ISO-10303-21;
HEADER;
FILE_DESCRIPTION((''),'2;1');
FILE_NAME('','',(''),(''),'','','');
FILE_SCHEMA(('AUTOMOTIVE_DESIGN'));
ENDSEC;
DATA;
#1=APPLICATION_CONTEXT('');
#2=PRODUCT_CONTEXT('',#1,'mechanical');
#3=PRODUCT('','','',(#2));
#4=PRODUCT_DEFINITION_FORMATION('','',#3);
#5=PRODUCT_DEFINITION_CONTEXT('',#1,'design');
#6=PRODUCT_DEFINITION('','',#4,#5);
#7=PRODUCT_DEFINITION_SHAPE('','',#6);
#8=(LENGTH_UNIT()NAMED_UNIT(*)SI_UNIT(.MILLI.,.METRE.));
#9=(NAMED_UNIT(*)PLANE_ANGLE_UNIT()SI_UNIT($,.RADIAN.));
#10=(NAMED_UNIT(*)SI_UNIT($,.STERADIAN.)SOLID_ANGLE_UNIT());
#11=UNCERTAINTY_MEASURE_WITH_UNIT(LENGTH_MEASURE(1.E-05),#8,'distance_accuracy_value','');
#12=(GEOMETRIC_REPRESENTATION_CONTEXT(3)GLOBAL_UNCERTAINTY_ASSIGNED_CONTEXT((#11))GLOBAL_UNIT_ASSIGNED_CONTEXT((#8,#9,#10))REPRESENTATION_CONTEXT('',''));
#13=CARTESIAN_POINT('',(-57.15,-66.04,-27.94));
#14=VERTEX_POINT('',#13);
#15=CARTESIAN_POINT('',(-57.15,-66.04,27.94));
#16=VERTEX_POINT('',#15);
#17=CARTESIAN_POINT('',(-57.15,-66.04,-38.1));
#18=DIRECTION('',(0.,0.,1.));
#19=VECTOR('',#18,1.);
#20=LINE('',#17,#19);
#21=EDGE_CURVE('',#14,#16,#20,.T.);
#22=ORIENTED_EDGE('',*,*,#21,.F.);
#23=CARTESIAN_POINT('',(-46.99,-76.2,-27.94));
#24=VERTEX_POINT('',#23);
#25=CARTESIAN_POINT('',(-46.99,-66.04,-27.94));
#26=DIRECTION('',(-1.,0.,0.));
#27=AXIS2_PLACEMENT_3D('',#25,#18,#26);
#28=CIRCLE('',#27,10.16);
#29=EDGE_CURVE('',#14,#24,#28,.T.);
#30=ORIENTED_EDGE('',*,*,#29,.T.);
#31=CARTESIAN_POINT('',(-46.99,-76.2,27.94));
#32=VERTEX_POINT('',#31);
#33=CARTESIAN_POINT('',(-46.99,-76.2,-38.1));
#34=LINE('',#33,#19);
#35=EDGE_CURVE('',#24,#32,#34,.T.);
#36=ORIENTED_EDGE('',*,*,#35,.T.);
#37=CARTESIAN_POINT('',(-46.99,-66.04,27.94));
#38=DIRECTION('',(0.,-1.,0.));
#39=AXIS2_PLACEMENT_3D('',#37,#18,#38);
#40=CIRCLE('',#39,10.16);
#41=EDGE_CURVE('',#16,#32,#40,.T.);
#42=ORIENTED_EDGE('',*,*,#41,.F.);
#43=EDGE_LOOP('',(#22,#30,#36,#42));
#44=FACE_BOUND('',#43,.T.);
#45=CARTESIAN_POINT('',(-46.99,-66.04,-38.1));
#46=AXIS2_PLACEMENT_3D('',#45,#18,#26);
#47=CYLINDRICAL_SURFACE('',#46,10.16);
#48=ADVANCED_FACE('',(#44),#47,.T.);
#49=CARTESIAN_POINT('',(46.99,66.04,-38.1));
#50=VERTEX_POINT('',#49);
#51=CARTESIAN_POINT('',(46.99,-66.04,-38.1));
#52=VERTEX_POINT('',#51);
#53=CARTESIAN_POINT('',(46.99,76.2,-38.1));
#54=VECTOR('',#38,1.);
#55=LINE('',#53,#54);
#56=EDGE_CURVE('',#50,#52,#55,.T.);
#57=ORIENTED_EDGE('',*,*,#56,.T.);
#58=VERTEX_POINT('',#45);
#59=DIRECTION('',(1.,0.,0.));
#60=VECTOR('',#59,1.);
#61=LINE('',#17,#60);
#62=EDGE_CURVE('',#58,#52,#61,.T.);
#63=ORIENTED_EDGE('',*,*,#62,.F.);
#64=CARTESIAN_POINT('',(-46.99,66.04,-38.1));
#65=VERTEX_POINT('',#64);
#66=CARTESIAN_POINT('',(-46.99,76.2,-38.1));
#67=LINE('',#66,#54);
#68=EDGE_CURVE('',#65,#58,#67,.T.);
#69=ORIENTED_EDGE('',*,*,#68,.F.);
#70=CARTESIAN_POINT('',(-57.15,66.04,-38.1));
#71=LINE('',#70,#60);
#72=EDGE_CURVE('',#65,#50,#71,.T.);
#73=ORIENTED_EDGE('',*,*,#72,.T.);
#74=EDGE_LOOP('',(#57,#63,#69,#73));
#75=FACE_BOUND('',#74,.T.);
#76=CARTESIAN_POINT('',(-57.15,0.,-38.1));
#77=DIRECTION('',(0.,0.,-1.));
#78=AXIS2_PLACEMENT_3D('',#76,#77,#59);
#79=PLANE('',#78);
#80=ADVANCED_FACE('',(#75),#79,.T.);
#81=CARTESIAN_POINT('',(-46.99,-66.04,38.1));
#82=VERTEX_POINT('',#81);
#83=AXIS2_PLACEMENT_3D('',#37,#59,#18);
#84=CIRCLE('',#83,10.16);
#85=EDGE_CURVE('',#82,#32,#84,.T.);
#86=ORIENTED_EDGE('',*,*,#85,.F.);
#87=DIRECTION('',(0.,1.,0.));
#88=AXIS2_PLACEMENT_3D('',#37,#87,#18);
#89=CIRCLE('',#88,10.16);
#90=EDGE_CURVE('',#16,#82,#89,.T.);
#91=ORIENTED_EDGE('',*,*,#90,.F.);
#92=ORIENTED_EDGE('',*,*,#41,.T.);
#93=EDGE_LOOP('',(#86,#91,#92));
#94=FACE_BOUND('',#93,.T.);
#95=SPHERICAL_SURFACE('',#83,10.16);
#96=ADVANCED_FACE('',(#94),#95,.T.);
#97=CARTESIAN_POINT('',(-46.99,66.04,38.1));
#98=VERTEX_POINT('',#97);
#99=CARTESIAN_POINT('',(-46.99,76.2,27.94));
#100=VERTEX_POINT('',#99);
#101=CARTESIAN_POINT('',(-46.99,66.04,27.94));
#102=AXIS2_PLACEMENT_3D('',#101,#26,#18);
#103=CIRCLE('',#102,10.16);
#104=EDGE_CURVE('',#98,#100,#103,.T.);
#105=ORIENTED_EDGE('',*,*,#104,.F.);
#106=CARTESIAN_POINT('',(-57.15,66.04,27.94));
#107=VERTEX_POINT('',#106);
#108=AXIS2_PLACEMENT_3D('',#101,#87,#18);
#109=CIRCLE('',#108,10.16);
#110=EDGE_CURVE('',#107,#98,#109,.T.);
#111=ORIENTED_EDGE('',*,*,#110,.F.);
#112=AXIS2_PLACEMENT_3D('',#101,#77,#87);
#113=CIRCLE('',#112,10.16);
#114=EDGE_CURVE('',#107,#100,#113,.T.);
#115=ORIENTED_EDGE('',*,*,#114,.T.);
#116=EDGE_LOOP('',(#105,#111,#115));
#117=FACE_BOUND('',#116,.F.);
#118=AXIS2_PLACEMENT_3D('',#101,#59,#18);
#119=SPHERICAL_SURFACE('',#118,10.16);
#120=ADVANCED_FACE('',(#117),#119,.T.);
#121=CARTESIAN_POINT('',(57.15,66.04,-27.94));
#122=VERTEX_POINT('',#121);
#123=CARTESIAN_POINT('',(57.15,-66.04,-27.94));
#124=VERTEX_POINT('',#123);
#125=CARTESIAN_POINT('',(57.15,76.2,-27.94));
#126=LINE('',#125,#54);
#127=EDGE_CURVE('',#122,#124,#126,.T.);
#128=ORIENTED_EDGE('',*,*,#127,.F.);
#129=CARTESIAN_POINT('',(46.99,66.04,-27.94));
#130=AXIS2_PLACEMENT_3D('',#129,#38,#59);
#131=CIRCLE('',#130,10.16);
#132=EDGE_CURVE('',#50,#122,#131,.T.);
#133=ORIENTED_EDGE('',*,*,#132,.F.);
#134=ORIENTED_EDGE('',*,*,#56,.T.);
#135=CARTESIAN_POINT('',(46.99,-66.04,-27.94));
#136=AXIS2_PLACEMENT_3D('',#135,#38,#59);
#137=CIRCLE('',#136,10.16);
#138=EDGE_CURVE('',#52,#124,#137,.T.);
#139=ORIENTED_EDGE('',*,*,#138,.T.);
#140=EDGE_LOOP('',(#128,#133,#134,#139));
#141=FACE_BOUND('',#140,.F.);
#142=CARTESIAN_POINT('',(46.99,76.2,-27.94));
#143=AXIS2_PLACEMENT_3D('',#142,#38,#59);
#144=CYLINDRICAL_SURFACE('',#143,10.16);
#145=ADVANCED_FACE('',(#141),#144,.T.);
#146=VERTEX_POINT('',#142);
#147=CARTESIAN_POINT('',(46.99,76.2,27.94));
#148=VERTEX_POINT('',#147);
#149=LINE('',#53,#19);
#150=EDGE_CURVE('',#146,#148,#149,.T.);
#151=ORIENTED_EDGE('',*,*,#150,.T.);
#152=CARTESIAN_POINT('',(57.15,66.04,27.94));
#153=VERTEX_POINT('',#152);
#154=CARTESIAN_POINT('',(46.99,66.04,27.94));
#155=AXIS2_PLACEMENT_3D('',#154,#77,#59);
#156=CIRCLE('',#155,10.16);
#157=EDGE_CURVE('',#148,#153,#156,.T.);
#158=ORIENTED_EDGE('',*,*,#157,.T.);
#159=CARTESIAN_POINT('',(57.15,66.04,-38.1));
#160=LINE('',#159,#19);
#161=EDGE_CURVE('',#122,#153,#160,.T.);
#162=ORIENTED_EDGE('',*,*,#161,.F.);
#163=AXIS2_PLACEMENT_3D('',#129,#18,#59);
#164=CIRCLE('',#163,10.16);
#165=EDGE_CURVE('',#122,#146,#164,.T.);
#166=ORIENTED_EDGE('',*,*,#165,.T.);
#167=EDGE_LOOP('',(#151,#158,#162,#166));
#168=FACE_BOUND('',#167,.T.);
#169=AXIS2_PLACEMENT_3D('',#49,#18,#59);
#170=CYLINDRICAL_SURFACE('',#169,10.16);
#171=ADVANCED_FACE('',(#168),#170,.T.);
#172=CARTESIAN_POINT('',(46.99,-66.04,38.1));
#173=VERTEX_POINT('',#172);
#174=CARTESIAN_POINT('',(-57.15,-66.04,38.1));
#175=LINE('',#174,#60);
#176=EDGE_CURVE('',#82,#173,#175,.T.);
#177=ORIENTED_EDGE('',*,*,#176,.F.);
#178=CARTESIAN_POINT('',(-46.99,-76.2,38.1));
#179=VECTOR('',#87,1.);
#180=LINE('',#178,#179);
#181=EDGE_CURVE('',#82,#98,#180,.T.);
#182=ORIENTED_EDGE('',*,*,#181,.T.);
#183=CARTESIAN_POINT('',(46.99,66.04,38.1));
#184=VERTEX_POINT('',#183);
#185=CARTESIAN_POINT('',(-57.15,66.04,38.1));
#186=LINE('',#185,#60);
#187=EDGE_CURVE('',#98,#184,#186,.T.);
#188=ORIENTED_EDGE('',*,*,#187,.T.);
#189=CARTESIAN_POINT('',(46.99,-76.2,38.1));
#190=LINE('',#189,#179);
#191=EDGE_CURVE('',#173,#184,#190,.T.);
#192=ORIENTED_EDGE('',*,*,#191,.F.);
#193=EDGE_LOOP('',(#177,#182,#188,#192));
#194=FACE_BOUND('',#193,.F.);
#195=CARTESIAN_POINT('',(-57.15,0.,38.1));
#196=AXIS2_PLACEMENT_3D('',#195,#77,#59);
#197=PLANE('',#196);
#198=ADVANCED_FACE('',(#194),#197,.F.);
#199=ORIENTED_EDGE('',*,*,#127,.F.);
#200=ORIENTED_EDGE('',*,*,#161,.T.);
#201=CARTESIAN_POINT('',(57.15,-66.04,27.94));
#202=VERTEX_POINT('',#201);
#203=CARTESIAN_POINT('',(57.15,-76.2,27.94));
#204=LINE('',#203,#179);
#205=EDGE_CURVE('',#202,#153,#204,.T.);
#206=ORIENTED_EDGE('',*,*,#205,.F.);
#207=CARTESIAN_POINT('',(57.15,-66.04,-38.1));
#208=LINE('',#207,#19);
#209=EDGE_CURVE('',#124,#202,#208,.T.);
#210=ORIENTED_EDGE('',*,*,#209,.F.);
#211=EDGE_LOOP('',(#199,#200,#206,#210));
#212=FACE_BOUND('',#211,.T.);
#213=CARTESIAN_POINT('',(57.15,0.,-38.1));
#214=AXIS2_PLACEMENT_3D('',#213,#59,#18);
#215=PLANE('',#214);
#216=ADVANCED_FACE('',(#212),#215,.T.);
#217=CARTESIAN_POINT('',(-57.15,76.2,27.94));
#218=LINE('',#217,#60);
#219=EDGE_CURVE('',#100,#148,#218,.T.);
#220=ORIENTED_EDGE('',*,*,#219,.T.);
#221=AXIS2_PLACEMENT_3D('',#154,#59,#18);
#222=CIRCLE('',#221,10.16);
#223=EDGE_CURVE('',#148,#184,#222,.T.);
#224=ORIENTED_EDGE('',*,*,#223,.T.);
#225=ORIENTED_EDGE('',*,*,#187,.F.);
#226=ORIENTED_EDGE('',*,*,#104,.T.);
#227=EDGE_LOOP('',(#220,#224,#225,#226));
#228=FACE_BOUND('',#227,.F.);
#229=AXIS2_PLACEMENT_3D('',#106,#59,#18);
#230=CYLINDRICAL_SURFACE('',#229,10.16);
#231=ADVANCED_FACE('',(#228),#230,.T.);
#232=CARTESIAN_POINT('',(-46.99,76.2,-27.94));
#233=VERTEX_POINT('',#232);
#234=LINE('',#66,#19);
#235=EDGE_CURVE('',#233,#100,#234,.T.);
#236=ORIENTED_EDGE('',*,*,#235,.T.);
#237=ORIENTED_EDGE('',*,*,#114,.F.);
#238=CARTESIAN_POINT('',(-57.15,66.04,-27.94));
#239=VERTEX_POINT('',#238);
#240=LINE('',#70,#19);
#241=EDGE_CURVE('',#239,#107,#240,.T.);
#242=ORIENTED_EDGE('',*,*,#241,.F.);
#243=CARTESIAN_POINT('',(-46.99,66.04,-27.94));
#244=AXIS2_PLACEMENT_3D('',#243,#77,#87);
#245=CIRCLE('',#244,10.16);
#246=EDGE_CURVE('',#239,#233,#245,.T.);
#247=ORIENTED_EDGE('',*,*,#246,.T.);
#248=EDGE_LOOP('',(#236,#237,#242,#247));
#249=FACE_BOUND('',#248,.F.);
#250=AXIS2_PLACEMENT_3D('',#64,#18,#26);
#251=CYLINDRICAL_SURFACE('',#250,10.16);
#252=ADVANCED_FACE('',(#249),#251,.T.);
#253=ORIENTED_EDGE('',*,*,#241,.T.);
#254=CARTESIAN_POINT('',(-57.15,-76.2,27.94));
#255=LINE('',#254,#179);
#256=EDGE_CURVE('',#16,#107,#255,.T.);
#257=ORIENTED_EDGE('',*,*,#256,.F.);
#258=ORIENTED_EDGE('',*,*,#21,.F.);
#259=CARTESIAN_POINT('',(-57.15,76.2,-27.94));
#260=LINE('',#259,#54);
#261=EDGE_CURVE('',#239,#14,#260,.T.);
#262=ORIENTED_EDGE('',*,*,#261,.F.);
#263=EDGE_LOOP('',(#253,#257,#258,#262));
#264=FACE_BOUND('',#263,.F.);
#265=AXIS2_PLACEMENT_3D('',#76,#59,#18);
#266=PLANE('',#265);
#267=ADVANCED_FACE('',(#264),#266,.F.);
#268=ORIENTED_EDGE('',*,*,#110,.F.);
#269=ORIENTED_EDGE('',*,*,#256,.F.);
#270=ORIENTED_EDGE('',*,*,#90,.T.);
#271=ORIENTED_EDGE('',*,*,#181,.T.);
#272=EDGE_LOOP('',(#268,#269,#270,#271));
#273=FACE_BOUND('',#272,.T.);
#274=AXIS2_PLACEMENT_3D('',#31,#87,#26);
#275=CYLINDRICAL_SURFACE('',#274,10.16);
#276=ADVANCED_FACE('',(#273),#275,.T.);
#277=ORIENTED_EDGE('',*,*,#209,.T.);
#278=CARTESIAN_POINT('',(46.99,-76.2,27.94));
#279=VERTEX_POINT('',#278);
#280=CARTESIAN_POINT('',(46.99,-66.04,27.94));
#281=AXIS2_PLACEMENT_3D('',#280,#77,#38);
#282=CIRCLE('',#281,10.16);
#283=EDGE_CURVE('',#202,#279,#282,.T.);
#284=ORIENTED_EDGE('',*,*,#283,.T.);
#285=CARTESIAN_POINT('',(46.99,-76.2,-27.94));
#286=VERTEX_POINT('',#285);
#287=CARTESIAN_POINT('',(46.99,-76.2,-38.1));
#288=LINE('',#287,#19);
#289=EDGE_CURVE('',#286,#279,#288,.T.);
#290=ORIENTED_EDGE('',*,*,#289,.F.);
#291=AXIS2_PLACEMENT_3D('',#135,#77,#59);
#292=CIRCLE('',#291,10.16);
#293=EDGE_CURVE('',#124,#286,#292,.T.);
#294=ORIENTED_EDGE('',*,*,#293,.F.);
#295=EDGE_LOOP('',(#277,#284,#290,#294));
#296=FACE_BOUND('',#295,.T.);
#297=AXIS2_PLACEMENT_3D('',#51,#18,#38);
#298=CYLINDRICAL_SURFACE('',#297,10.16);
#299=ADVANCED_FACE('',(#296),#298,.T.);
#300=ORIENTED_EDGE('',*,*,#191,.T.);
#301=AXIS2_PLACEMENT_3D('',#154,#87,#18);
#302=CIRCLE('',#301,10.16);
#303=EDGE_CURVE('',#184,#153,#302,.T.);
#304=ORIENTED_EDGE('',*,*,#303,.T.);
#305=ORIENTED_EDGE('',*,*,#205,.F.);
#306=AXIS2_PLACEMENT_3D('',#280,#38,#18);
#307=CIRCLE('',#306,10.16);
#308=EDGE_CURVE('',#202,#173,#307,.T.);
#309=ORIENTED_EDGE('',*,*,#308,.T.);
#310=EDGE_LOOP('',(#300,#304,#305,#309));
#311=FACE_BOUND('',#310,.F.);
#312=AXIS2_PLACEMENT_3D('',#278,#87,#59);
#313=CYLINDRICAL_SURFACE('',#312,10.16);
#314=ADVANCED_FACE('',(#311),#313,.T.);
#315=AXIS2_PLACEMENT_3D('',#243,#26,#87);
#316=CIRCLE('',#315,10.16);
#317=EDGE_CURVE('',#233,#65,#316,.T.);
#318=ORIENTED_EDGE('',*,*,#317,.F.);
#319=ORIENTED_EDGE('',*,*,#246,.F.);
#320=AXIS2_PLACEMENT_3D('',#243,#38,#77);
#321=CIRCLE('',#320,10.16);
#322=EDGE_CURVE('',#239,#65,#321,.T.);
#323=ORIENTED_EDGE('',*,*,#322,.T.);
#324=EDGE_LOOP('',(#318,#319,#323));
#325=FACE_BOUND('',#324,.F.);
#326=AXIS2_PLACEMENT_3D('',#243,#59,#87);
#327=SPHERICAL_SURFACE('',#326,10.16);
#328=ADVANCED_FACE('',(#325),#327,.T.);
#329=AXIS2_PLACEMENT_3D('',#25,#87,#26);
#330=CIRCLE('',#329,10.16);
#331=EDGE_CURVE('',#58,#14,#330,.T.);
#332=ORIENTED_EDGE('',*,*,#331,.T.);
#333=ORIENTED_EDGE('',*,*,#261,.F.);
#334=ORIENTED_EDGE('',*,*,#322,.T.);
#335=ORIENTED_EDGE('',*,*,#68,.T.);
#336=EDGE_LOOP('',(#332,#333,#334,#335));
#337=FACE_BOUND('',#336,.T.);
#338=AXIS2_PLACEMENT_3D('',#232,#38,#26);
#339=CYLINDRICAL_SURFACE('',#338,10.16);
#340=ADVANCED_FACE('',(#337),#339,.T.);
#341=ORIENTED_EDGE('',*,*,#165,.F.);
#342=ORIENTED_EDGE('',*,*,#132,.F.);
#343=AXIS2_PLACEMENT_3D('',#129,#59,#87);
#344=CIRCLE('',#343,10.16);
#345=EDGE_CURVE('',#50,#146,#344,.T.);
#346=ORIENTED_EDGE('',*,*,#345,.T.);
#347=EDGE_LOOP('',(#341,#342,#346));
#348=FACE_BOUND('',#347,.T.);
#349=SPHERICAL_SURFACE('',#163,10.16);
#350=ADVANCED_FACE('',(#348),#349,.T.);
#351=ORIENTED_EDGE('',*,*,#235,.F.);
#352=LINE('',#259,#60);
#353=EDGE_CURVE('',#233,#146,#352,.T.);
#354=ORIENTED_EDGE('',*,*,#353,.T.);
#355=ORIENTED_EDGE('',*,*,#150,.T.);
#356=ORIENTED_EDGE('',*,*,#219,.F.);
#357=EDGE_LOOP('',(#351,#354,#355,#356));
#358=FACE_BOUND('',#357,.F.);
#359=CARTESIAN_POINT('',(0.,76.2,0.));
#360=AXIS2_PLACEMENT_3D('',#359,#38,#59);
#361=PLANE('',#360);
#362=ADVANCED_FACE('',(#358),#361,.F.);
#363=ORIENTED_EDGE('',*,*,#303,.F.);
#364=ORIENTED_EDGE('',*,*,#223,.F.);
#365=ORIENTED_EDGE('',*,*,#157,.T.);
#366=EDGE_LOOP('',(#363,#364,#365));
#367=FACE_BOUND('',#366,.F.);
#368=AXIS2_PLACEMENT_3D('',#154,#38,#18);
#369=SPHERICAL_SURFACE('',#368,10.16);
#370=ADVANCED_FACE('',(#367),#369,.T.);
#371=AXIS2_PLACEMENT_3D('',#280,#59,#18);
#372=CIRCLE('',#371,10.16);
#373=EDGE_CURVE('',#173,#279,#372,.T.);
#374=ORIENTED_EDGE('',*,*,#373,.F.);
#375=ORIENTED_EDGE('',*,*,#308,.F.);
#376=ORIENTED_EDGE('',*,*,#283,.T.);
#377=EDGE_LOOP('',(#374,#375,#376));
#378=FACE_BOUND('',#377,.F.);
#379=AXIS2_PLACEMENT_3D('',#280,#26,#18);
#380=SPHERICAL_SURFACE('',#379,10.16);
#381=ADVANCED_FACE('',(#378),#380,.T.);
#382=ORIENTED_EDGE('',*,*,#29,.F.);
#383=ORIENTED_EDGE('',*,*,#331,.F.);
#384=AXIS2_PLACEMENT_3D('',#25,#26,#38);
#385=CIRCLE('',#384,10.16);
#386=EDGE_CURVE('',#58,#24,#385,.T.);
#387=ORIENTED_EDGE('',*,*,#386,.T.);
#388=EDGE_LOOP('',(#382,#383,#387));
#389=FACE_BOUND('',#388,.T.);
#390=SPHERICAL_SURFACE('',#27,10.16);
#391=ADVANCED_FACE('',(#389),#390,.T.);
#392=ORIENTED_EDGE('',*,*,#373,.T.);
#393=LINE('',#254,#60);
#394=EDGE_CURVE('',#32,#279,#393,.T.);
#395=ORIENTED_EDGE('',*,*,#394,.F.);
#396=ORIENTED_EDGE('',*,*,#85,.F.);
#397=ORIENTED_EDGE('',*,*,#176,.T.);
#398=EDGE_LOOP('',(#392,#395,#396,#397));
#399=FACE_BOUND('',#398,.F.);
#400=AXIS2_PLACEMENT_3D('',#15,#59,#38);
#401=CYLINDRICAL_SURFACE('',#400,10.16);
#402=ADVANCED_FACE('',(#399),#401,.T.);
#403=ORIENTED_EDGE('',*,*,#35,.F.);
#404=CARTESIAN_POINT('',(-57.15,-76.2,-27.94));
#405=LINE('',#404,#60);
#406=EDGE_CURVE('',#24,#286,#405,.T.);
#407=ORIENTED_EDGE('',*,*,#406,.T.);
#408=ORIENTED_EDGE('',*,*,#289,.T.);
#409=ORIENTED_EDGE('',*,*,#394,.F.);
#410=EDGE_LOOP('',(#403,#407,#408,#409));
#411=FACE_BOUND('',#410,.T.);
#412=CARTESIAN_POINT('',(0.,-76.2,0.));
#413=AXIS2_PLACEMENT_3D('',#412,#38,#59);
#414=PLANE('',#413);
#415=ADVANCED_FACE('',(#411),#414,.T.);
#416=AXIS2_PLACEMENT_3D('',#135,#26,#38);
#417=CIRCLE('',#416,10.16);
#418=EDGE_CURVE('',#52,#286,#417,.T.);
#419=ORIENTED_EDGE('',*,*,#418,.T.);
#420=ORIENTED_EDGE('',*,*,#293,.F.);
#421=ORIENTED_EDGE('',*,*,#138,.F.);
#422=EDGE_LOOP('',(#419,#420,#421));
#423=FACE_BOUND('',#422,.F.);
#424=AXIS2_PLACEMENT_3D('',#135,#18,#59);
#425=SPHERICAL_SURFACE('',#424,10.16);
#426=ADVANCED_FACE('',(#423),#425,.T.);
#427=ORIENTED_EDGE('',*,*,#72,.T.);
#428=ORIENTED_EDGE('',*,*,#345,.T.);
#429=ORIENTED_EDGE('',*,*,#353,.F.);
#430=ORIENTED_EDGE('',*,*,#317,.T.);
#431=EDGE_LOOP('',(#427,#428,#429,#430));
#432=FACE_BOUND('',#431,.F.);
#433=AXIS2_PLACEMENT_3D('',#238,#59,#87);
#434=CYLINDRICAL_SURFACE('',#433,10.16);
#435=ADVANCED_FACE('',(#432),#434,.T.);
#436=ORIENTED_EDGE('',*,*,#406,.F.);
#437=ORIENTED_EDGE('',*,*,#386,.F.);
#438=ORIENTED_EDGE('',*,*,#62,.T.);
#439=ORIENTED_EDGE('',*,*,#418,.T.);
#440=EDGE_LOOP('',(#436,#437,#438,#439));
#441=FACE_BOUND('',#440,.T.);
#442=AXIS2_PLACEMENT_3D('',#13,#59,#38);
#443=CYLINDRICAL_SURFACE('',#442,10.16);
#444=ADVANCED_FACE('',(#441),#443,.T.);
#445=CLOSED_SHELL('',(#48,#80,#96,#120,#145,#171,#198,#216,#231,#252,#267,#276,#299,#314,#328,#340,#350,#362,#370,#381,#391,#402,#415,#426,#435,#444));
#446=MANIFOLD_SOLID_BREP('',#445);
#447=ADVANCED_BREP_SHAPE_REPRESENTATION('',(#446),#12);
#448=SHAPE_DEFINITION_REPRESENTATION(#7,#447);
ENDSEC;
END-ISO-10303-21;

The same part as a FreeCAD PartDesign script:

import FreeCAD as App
import Part
import Sketcher
from FreeCAD import Vector
Q = App.Units.Quantity


def add_polygon(sketch, points):
    """Adds a closed chain of lines whose ends are joined by coincident constraints."""
    first, n = sketch.GeometryCount, len(points)
    for a, b in zip(points, points[1:] + points[:1]):
        sketch.addGeometry(Part.LineSegment(App.Vector(*a, 0), App.Vector(*b, 0)), False)
    for i in range(n):
        sketch.addConstraint(Sketcher.Constraint("Coincident", first + i, 2, first + (i + 1) % n, 1))

doc = App.newDocument("Part")
body = doc.addObject("PartDesign::Body", "Body")

sketch1 = doc.addObject("Sketcher::SketchObject", "Sketch")
body.addObject(sketch1)
sketch1.AttachmentSupport = (doc.XZ_Plane, [""])
sketch1.MapMode = "FlatFace"
add_polygon(sketch1, [(-57, 38), (-57, -38), (57, -38), (57, 38)])
sketch1.addConstraint(Sketcher.Constraint("Vertical", 0))
sketch1.addConstraint(Sketcher.Constraint("Horizontal", 1))
sketch1.addConstraint(Sketcher.Constraint("Vertical", 2))
sketch1.addConstraint(Sketcher.Constraint("Horizontal", 3))
sketch1.addConstraint(Sketcher.Constraint("Symmetric", 0, 2, 2, 2, -1, 1))
sketch1.addConstraint(Sketcher.Constraint("DistanceY", 0, 2, 0, 1, Q("3 in")))
sketch1.addConstraint(Sketcher.Constraint("DistanceX", 1, 1, 1, 2, Q("4.5 in")))
pad1 = doc.addObject("PartDesign::Pad", "Pad")
body.addObject(pad1)
pad1.Profile = sketch1
pad1.Type = "TwoLengths"
pad1.Length = Q("3 in")
pad1.Length2 = Q("3 in")
doc.recompute()

fillet = doc.addObject("PartDesign::Fillet", "Fillet")
body.addObject(fillet)
fillet.Base = (pad1, ["Edge1"])
fillet.UseAllEdges = True
fillet.Radius = Q("0.4 in")

doc.recompute()
